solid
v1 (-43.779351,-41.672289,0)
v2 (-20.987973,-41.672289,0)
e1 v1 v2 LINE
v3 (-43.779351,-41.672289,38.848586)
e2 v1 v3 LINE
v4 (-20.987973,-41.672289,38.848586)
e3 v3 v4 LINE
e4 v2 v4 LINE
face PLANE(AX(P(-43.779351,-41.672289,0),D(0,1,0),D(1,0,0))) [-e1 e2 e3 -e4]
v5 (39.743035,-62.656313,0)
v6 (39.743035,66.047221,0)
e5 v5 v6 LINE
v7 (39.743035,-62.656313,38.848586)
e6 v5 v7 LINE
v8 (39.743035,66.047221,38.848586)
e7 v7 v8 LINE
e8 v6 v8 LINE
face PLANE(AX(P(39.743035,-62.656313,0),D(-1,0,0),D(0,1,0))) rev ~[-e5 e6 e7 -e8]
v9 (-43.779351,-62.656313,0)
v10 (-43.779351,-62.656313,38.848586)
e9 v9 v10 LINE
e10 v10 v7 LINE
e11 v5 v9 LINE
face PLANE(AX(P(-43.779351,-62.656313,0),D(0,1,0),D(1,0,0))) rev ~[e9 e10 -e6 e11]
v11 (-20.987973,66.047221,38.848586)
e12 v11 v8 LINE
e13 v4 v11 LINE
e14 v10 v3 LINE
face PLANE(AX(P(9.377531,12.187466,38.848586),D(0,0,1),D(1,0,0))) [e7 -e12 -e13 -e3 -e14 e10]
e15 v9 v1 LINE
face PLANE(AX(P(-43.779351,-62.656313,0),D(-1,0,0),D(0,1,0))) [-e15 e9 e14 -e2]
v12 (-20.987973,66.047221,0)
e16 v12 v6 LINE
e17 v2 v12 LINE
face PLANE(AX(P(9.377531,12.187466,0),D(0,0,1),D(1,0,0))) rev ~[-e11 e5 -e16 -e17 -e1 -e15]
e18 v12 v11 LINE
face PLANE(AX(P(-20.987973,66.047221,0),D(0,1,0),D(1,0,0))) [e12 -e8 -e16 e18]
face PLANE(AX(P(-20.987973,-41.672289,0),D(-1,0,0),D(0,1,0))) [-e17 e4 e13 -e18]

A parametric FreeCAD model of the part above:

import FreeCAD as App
import Part
import Sketcher

V = App.Vector
Q = App.Units.Quantity


def add_polygon(sketch, points):
    """Adds a closed chain of lines whose ends are joined by coincident constraints."""
    first, n = sketch.GeometryCount, len(points)
    for a, b in zip(points, points[1:] + points[:1]):
        sketch.addGeometry(Part.LineSegment(App.Vector(*a, 0), App.Vector(*b, 0)), False)
    for i in range(n):
        sketch.addConstraint(Sketcher.Constraint("Coincident", first + i, 2, first + (i + 1) % n, 1))

doc = App.newDocument("Part")
body = doc.addObject("PartDesign::Body", "Body")

# Sketch on XY plane
sketch1 = body.newObject("Sketcher::SketchObject", "Sketch")
sketch1.AttachmentSupport = (doc.getObject("XY_Plane"), [""])
sketch1.MapMode = "FlatFace"
add_polygon(sketch1, [(-44, -63), (40, -63), (40, 66), (-21, 66), (-21, -42), (-44, -42)])  # lines 0-5
sketch1.addConstraint(Sketcher.Constraint("Horizontal", 0))
sketch1.addConstraint(Sketcher.Constraint("Vertical", 1))
sketch1.addConstraint(Sketcher.Constraint("Horizontal", 2))
sketch1.addConstraint(Sketcher.Constraint("Vertical", 3))
sketch1.addConstraint(Sketcher.Constraint("Horizontal", 4))
sketch1.addConstraint(Sketcher.Constraint("Vertical", 5))
sketch1.addConstraint(Sketcher.Constraint("DistanceX", 2, 2, 2, 1, Q("60.731009 mm")))
sketch1.addConstraint(Sketcher.Constraint("DistanceY", 3, 2, 3, 1, Q("107.71951 mm")))
sketch1.addConstraint(Sketcher.Constraint("DistanceX", 0, 1, 0, 2, Q("83.522386 mm")))
sketch1.addConstraint(Sketcher.Constraint("DistanceY", 1, 1, 1, 2, Q("128.703534 mm")))
sketch1.addConstraint(Sketcher.Constraint("DistanceY", -1, 1, 1, 2, Q("66.047221 mm")))
sketch1.addConstraint(Sketcher.Constraint("DistanceX", 4, 2, -1, 1, Q("43.779351 mm")))
pad1 = body.newObject("PartDesign::Pad", "Pad")
pad1.Profile = sketch1
pad1.Length = 38.848586

# Sketch on YZ plane
sketch2 = body.newObject("Sketcher::SketchObject", "Sketch001")
sketch2.AttachmentSupport = (doc.getObject("YZ_Plane"), [""])
sketch2.MapMode = "FlatFace"
sketch2.AttachmentOffset = App.Placement(V(0, 0, -43.779351), App.Rotation())
add_polygon(sketch2, [(-42, 39), (-42, 0), (-63, 0), (-63, 39)])  # lines 0-3
sketch2.addConstraint(Sketcher.Constraint("Vertical", 0))
sketch2.addConstraint(Sketcher.Constraint("Horizontal", 1))
sketch2.addConstraint(Sketcher.Constraint("Vertical", 2))
sketch2.addConstraint(Sketcher.Constraint("Horizontal", 3))
sketch2.addConstraint(Sketcher.Constraint("PointOnObject", 0, 2, -1))
sketch2.addConstraint(Sketcher.Constraint("DistanceX", 1, 2, 1, 1, Q("20.984024 mm")))
sketch2.addConstraint(Sketcher.Constraint("DistanceY", 0, 2, 0, 1, Q("38.848586 mm")))
sketch2.addConstraint(Sketcher.Constraint("DistanceX", 0, 2, -1, 1, Q("41.672289 mm")))
pad2 = body.newObject("PartDesign::Pad", "Pad001")
pad2.Profile = sketch2
pad2.Length = 27.409891

# Sketch on YZ plane
sketch3 = body.newObject("Sketcher::SketchObject", "Sketch002")
sketch3.AttachmentSupport = (doc.getObject("YZ_Plane"), [""])
sketch3.MapMode = "FlatFace"
sketch3.AttachmentOffset = App.Placement(V(0, 0, -43.779351), App.Rotation())
add_polygon(sketch3, [(-42, 39), (-42, 0), (-63, 0), (-63, 39)])  # lines 0-3
sketch3.addConstraint(Sketcher.Constraint("Vertical", 0))
sketch3.addConstraint(Sketcher.Constraint("Horizontal", 1))
sketch3.addConstraint(Sketcher.Constraint("Vertical", 2))
sketch3.addConstraint(Sketcher.Constraint("Horizontal", 3))
sketch3.addConstraint(Sketcher.Constraint("PointOnObject", 0, 2, -1))
sketch3.addConstraint(Sketcher.Constraint("DistanceX", 1, 2, 1, 1, Q("20.984024 mm")))
sketch3.addConstraint(Sketcher.Constraint("DistanceY", 0, 2, 0, 1, Q("38.848586 mm")))
sketch3.addConstraint(Sketcher.Constraint("DistanceX", 0, 2, -1, 1, Q("41.672289 mm")))
pad3 = body.newObject("PartDesign::Pad", "Pad002")
pad3.Profile = sketch3
pad3.Length = 31.743571

doc.recompute()
